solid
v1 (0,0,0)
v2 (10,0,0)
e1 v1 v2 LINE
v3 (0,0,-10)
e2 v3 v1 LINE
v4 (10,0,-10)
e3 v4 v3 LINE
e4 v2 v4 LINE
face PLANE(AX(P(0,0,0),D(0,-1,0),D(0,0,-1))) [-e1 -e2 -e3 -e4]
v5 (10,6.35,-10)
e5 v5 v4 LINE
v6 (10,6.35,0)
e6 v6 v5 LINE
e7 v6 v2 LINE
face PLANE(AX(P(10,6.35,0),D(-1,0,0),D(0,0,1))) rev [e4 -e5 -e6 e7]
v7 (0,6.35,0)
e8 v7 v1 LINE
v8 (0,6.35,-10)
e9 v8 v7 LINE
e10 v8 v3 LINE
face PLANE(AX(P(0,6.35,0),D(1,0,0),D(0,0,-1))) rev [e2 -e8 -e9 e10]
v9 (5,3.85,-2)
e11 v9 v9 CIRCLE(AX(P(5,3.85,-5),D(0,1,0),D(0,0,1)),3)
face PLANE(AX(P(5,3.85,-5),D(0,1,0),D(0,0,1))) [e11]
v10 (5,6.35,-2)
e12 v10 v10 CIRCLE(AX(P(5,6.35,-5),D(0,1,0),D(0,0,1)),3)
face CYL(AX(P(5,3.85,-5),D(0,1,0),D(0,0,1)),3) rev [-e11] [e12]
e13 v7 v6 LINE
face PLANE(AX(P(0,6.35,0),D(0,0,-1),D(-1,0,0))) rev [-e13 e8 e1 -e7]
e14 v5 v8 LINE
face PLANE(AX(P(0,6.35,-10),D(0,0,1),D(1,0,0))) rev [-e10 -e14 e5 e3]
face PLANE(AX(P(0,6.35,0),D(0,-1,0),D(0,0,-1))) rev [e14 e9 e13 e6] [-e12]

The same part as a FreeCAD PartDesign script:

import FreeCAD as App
import Part
import Sketcher

doc = App.newDocument("Part")
body = doc.addObject("PartDesign::Body", "Body")

# Sketch on XZ plane
sketch1 = body.newObject("Sketcher::SketchObject", "Sketch")
sketch1.AttachmentSupport = (doc.getObject("XZ_Plane"), [""])
sketch1.MapMode = "FlatFace"
sketch1.addGeometry([
    Part.LineSegment(App.Vector(0, -10, 0), App.Vector(0, 0, 0)),
    Part.LineSegment(App.Vector(0, 0, 0), App.Vector(10, 0, 0)),
    Part.LineSegment(App.Vector(10, 0, 0), App.Vector(10, -10, 0)),
    Part.LineSegment(App.Vector(10, -10, 0), App.Vector(0, -10, 0)),
], False)
sketch1.addConstraint([
    Sketcher.Constraint("Coincident", 0, 2, 1, 1),
    Sketcher.Constraint("Coincident", 1, 2, 2, 1),
    Sketcher.Constraint("Coincident", 2, 2, 3, 1),
    Sketcher.Constraint("Coincident", 3, 2, 0, 1),
    Sketcher.Constraint("Vertical", 0),
    Sketcher.Constraint("Horizontal", 1),
    Sketcher.Constraint("Vertical", 2),
    Sketcher.Constraint("Horizontal", 3),
    Sketcher.Constraint("Coincident", 0, 2, -1, 1),
    Sketcher.Constraint("Equal", 3, 0),
    Sketcher.Constraint("DistanceX", 1, 1, 1, 2, 10.0),
])
pad1 = body.newObject("PartDesign::Pad", "Pad")
pad1.Profile = sketch1
pad1.Length = 6.35
pad1.Reversed = True

# Sketch on XZ plane
sketch2 = body.newObject("Sketcher::SketchObject", "Sketch001")
sketch2.AttachmentSupport = (doc.getObject("XZ_Plane"), [""])
sketch2.MapMode = "FlatFace"
sketch2.AttachmentOffset = App.Placement(App.Vector(0, 0, -6.35), App.Rotation())
sketch2.addGeometry(Part.Circle(App.Vector(5, -5, 0), App.Vector(0, 0, 1), 3), False)
sketch2.addConstraint([
    Sketcher.Constraint("Diameter", 0, 6.0),
    Sketcher.Constraint("DistanceX", -1, 1, 0, 3, 5.0),
    Sketcher.Constraint("DistanceY", 0, 3, -1, 1, 5.0),
])
pocket1 = body.newObject("PartDesign::Pocket", "Pocket")
pocket1.Profile = sketch2
pocket1.Length = 2.5
pocket1.Reversed = True

doc.recompute()
